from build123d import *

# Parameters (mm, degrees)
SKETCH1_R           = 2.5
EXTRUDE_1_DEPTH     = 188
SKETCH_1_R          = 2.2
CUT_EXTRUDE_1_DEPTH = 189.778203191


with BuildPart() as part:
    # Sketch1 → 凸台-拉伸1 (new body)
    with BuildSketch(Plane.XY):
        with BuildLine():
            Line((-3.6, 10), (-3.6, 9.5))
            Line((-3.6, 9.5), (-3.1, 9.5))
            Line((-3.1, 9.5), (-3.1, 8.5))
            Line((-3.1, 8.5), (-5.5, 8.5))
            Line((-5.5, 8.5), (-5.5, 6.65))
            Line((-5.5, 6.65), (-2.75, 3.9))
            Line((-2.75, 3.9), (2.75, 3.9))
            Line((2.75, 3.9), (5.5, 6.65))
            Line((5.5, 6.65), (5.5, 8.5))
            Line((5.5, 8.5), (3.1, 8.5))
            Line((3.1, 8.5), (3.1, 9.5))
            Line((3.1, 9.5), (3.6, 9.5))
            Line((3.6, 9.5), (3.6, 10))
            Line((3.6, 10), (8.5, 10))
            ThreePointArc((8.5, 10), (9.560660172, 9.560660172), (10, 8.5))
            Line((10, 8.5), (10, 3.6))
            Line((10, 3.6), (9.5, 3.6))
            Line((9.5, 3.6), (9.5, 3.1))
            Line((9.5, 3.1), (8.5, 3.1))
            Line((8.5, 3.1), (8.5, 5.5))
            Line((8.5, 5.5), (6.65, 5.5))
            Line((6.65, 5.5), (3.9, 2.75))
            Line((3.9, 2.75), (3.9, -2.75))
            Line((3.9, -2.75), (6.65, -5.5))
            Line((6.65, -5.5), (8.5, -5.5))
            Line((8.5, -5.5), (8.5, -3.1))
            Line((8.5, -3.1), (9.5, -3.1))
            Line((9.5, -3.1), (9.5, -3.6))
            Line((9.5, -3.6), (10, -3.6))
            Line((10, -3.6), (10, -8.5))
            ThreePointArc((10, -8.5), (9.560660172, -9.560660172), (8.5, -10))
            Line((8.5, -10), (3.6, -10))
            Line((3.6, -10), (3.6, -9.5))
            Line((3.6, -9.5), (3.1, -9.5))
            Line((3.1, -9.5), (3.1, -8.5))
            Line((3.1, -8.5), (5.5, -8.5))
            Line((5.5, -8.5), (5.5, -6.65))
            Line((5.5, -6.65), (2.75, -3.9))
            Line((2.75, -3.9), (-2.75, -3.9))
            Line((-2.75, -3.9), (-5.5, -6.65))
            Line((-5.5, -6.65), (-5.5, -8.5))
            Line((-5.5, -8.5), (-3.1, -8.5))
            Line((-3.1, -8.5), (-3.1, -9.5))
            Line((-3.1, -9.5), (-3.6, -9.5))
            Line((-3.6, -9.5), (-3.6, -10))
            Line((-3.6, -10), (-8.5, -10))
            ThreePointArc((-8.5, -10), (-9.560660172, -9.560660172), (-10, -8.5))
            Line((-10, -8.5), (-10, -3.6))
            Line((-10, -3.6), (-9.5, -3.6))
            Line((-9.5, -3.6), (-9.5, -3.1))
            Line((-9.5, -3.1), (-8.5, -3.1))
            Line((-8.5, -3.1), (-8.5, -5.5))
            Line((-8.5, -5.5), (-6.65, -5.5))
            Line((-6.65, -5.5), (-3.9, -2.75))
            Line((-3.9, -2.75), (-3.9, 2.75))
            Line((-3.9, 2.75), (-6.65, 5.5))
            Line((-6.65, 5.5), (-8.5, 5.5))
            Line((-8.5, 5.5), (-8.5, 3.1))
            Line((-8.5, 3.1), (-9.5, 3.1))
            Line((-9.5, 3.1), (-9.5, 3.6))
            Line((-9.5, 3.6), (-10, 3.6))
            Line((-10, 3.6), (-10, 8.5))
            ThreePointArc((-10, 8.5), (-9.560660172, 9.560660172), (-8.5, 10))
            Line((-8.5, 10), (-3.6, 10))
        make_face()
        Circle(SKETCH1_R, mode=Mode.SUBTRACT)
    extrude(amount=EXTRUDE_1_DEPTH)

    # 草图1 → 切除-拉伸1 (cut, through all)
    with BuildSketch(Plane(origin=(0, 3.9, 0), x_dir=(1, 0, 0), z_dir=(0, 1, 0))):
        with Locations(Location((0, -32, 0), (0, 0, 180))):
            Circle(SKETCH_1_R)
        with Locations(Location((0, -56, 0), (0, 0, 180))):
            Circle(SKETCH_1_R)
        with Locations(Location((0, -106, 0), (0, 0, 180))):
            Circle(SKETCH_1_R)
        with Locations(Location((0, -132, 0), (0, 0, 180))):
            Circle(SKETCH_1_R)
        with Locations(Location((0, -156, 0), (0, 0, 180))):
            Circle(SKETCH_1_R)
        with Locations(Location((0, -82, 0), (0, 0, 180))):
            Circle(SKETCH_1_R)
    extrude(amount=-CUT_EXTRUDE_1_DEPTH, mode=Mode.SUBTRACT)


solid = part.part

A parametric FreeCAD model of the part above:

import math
import FreeCAD as App
import Part
import Sketcher
Q = App.Units.Quantity

doc = App.newDocument("Part")
params = doc.addObject("Spreadsheet::Sheet", "Params")
for row, (alias, value) in enumerate([
    ("sketch1_diameter", "5 mm"),
    ("sketch1_radius", "1.5 mm"),
    ("sketch1_width", "1 mm"),
    ("sketch1_width2", "4.9 mm"),
    ("sketch1_width3", "2.4 mm"),
    ("pad1_length", "188 mm"),
    ("sketch2_diameter", "4.4 mm"),
], start=1):
    params.set(f"A{row}", alias)
    params.set(f"B{row}", "=" + value)
    params.setAlias(f"B{row}", alias)

body = doc.addObject("PartDesign::Body", "Body")

sketch1 = body.newObject("Sketcher::SketchObject", "Sketch")
sketch1.AttachmentSupport = (doc.getObject("XY_Plane"), [""])
sketch1.MapMode = "FlatFace"
sketch1.addGeometry([
    Part.LineSegment(App.Vector(-3.6, 9.5, 0), App.Vector(-3.6, 10, 0)),
    Part.LineSegment(App.Vector(-3.6, 10, 0), App.Vector(-8.5, 10, 0)),
    Part.ArcOfCircle(Part.Circle(App.Vector(-8.5, 8.5, 0), App.Vector(0, 0, 1), 1.5), math.radians(90), math.radians(180)),
    Part.LineSegment(App.Vector(-10, 8.5, 0), App.Vector(-10, 3.6, 0)),
    Part.LineSegment(App.Vector(-10, 3.6, 0), App.Vector(-9.5, 3.6, 0)),
    Part.LineSegment(App.Vector(-9.5, 3.6, 0), App.Vector(-9.5, 3.1, 0)),
    Part.LineSegment(App.Vector(-9.5, 3.1, 0), App.Vector(-8.5, 3.1, 0)),
    Part.LineSegment(App.Vector(-8.5, 3.1, 0), App.Vector(-8.5, 5.5, 0)),
    Part.LineSegment(App.Vector(-8.5, 5.5, 0), App.Vector(-6.65, 5.5, 0)),
    Part.LineSegment(App.Vector(-6.65, 5.5, 0), App.Vector(-3.9, 2.75, 0)),
    Part.LineSegment(App.Vector(-3.9, 2.75, 0), App.Vector(-3.9, -2.75, 0)),
    Part.LineSegment(App.Vector(-3.9, -2.75, 0), App.Vector(-6.65, -5.5, 0)),
    Part.LineSegment(App.Vector(-6.65, -5.5, 0), App.Vector(-8.5, -5.5, 0)),
    Part.LineSegment(App.Vector(-8.5, -5.5, 0), App.Vector(-8.5, -3.1, 0)),
    Part.LineSegment(App.Vector(-8.5, -3.1, 0), App.Vector(-9.5, -3.1, 0)),
    Part.LineSegment(App.Vector(-9.5, -3.1, 0), App.Vector(-9.5, -3.6, 0)),
    Part.LineSegment(App.Vector(-9.5, -3.6, 0), App.Vector(-10, -3.6, 0)),
    Part.LineSegment(App.Vector(-10, -3.6, 0), App.Vector(-10, -8.5, 0)),
    Part.ArcOfCircle(Part.Circle(App.Vector(-8.5, -8.5, 0), App.Vector(0, 0, 1), 1.5), math.radians(180), math.radians(270)),
    Part.LineSegment(App.Vector(-8.5, -10, 0), App.Vector(-3.6, -10, 0)),
    Part.LineSegment(App.Vector(-3.6, -10, 0), App.Vector(-3.6, -9.5, 0)),
    Part.LineSegment(App.Vector(-3.6, -9.5, 0), App.Vector(-3.1, -9.5, 0)),
    Part.LineSegment(App.Vector(-3.1, -9.5, 0), App.Vector(-3.1, -8.5, 0)),
    Part.LineSegment(App.Vector(-3.1, -8.5, 0), App.Vector(-5.5, -8.5, 0)),
    Part.LineSegment(App.Vector(-5.5, -8.5, 0), App.Vector(-5.5, -6.65, 0)),
    Part.LineSegment(App.Vector(-5.5, -6.65, 0), App.Vector(-2.75, -3.9, 0)),
    Part.LineSegment(App.Vector(-2.75, -3.9, 0), App.Vector(2.75, -3.9, 0)),
    Part.LineSegment(App.Vector(2.75, -3.9, 0), App.Vector(5.5, -6.65, 0)),
    Part.LineSegment(App.Vector(5.5, -6.65, 0), App.Vector(5.5, -8.5, 0)),
    Part.LineSegment(App.Vector(5.5, -8.5, 0), App.Vector(3.1, -8.5, 0)),
    Part.LineSegment(App.Vector(3.1, -8.5, 0), App.Vector(3.1, -9.5, 0)),
    Part.LineSegment(App.Vector(3.1, -9.5, 0), App.Vector(3.6, -9.5, 0)),
    Part.LineSegment(App.Vector(3.6, -9.5, 0), App.Vector(3.6, -10, 0)),
    Part.LineSegment(App.Vector(3.6, -10, 0), App.Vector(8.5, -10, 0)),
    Part.ArcOfCircle(Part.Circle(App.Vector(8.5, -8.5, 0), App.Vector(0, 0, 1), 1.5), math.radians(-90), math.radians(0)),
    Part.LineSegment(App.Vector(10, -8.5, 0), App.Vector(10, -3.6, 0)),
    Part.LineSegment(App.Vector(10, -3.6, 0), App.Vector(9.5, -3.6, 0)),
    Part.LineSegment(App.Vector(9.5, -3.6, 0), App.Vector(9.5, -3.1, 0)),
    Part.LineSegment(App.Vector(9.5, -3.1, 0), App.Vector(8.5, -3.1, 0)),
    Part.LineSegment(App.Vector(8.5, -3.1, 0), App.Vector(8.5, -5.5, 0)),
    Part.LineSegment(App.Vector(8.5, -5.5, 0), App.Vector(6.65, -5.5, 0)),
    Part.LineSegment(App.Vector(6.65, -5.5, 0), App.Vector(3.9, -2.75, 0)),
    Part.LineSegment(App.Vector(3.9, -2.75, 0), App.Vector(3.9, 2.75, 0)),
    Part.LineSegment(App.Vector(3.9, 2.75, 0), App.Vector(6.65, 5.5, 0)),
    Part.LineSegment(App.Vector(6.65, 5.5, 0), App.Vector(8.5, 5.5, 0)),
    Part.LineSegment(App.Vector(8.5, 5.5, 0), App.Vector(8.5, 3.1, 0)),
    Part.LineSegment(App.Vector(8.5, 3.1, 0), App.Vector(9.5, 3.1, 0)),
    Part.LineSegment(App.Vector(9.5, 3.1, 0), App.Vector(9.5, 3.6, 0)),
    Part.LineSegment(App.Vector(9.5, 3.6, 0), App.Vector(10, 3.6, 0)),
    Part.LineSegment(App.Vector(10, 3.6, 0), App.Vector(10, 8.5, 0)),
    Part.ArcOfCircle(Part.Circle(App.Vector(8.5, 8.5, 0), App.Vector(0, 0, 1), 1.5), math.radians(0), math.radians(90)),
    Part.LineSegment(App.Vector(8.5, 10, 0), App.Vector(3.6, 10, 0)),
    Part.LineSegment(App.Vector(3.6, 10, 0), App.Vector(3.6, 9.5, 0)),
    Part.LineSegment(App.Vector(3.6, 9.5, 0), App.Vector(3.1, 9.5, 0)),
    Part.LineSegment(App.Vector(3.1, 9.5, 0), App.Vector(3.1, 8.5, 0)),
    Part.LineSegment(App.Vector(3.1, 8.5, 0), App.Vector(5.5, 8.5, 0)),
    Part.LineSegment(App.Vector(5.5, 8.5, 0), App.Vector(5.5, 6.65, 0)),
    Part.LineSegment(App.Vector(5.5, 6.65, 0), App.Vector(2.75, 3.9, 0)),
    Part.LineSegment(App.Vector(2.75, 3.9, 0), App.Vector(-2.75, 3.9, 0)),
    Part.LineSegment(App.Vector(-2.75, 3.9, 0), App.Vector(-5.5, 6.65, 0)),
    Part.LineSegment(App.Vector(-5.5, 6.65, 0), App.Vector(-5.5, 8.5, 0)),
    Part.LineSegment(App.Vector(-5.5, 8.5, 0), App.Vector(-3.1, 8.5, 0)),
    Part.LineSegment(App.Vector(-3.1, 8.5, 0), App.Vector(-3.1, 9.5, 0)),
    Part.LineSegment(App.Vector(-3.1, 9.5, 0), App.Vector(-3.6, 9.5, 0)),
    Part.Circle(App.Vector(0, 0, 0), App.Vector(0, 0, 1), 2.5),
], False)
sketch1.addConstraint([
    Sketcher.Constraint("Coincident", 0, 2, 1, 1),
    Sketcher.Constraint("Tangent", 1, 2, 2, 1),
    Sketcher.Constraint("Tangent", 2, 2, 3, 1),
    Sketcher.Constraint("Coincident", 3, 2, 4, 1),
    Sketcher.Constraint("Coincident", 4, 2, 5, 1),
    Sketcher.Constraint("Coincident", 5, 2, 6, 1),
    Sketcher.Constraint("Coincident", 6, 2, 7, 1),
    Sketcher.Constraint("Coincident", 7, 2, 8, 1),
    Sketcher.Constraint("Coincident", 8, 2, 9, 1),
    Sketcher.Constraint("Coincident", 9, 2, 10, 1),
    Sketcher.Constraint("Coincident", 10, 2, 11, 1),
    Sketcher.Constraint("Coincident", 11, 2, 12, 1),
    Sketcher.Constraint("Coincident", 12, 2, 13, 1),
    Sketcher.Constraint("Coincident", 13, 2, 14, 1),
    Sketcher.Constraint("Coincident", 14, 2, 15, 1),
    Sketcher.Constraint("Coincident", 15, 2, 16, 1),
    Sketcher.Constraint("Coincident", 16, 2, 17, 1),
    Sketcher.Constraint("Tangent", 17, 2, 18, 1),
    Sketcher.Constraint("Tangent", 18, 2, 19, 1),
    Sketcher.Constraint("Coincident", 19, 2, 20, 1),
    Sketcher.Constraint("Coincident", 20, 2, 21, 1),
    Sketcher.Constraint("Coincident", 21, 2, 22, 1),
    Sketcher.Constraint("Coincident", 22, 2, 23, 1),
    Sketcher.Constraint("Coincident", 23, 2, 24, 1),
    Sketcher.Constraint("Coincident", 24, 2, 25, 1),
    Sketcher.Constraint("Coincident", 25, 2, 26, 1),
    Sketcher.Constraint("Coincident", 26, 2, 27, 1),
    Sketcher.Constraint("Coincident", 27, 2, 28, 1),
    Sketcher.Constraint("Coincident", 28, 2, 29, 1),
    Sketcher.Constraint("Coincident", 29, 2, 30, 1),
    Sketcher.Constraint("Coincident", 30, 2, 31, 1),
    Sketcher.Constraint("Coincident", 31, 2, 32, 1),
    Sketcher.Constraint("Coincident", 32, 2, 33, 1),
    Sketcher.Constraint("Tangent", 33, 2, 34, 1),
    Sketcher.Constraint("Tangent", 34, 2, 35, 1),
    Sketcher.Constraint("Coincident", 35, 2, 36, 1),
    Sketcher.Constraint("Coincident", 36, 2, 37, 1),
    Sketcher.Constraint("Coincident", 37, 2, 38, 1),
    Sketcher.Constraint("Coincident", 38, 2, 39, 1),
    Sketcher.Constraint("Coincident", 39, 2, 40, 1),
    Sketcher.Constraint("Coincident", 40, 2, 41, 1),
    Sketcher.Constraint("Coincident", 41, 2, 42, 1),
    Sketcher.Constraint("Coincident", 42, 2, 43, 1),
    Sketcher.Constraint("Coincident", 43, 2, 44, 1),
    Sketcher.Constraint("Coincident", 44, 2, 45, 1),
    Sketcher.Constraint("Coincident", 45, 2, 46, 1),
    Sketcher.Constraint("Coincident", 46, 2, 47, 1),
    Sketcher.Constraint("Coincident", 47, 2, 48, 1),
    Sketcher.Constraint("Coincident", 48, 2, 49, 1),
    Sketcher.Constraint("Tangent", 49, 2, 50, 1),
    Sketcher.Constraint("Tangent", 50, 2, 51, 1),
    Sketcher.Constraint("Coincident", 51, 2, 52, 1),
    Sketcher.Constraint("Coincident", 52, 2, 53, 1),
    Sketcher.Constraint("Coincident", 53, 2, 54, 1),
    Sketcher.Constraint("Coincident", 54, 2, 55, 1),
    Sketcher.Constraint("Coincident", 55, 2, 56, 1),
    Sketcher.Constraint("Coincident", 56, 2, 57, 1),
    Sketcher.Constraint("Coincident", 57, 2, 58, 1),
    Sketcher.Constraint("Coincident", 58, 2, 59, 1),
    Sketcher.Constraint("Coincident", 59, 2, 60, 1),
    Sketcher.Constraint("Coincident", 60, 2, 61, 1),
    Sketcher.Constraint("Coincident", 61, 2, 62, 1),
    Sketcher.Constraint("Coincident", 62, 2, 63, 1),
    Sketcher.Constraint("Coincident", 63, 2, 0, 1),
    Sketcher.Constraint("Vertical", 0),
    Sketcher.Constraint("Horizontal", 1),
    Sketcher.Constraint("Vertical", 3),
    Sketcher.Constraint("Horizontal", 4),
    Sketcher.Constraint("Vertical", 5),
    Sketcher.Constraint("Horizontal", 6),
    Sketcher.Constraint("Vertical", 7),
    Sketcher.Constraint("Horizontal", 8),
    Sketcher.Constraint("Vertical", 10),
    Sketcher.Constraint("Horizontal", 12),
    Sketcher.Constraint("Vertical", 13),
    Sketcher.Constraint("Horizontal", 14),
    Sketcher.Constraint("Vertical", 15),
    Sketcher.Constraint("Horizontal", 16),
    Sketcher.Constraint("Vertical", 17),
    Sketcher.Constraint("Horizontal", 19),
    Sketcher.Constraint("Vertical", 20),
    Sketcher.Constraint("Horizontal", 21),
    Sketcher.Constraint("Vertical", 22),
    Sketcher.Constraint("Horizontal", 23),
    Sketcher.Constraint("Vertical", 24),
    Sketcher.Constraint("Horizontal", 26),
    Sketcher.Constraint("Vertical", 28),
    Sketcher.Constraint("Horizontal", 29),
    Sketcher.Constraint("Vertical", 30),
    Sketcher.Constraint("Horizontal", 31),
    Sketcher.Constraint("Vertical", 32),
    Sketcher.Constraint("Horizontal", 33),
    Sketcher.Constraint("Vertical", 35),
    Sketcher.Constraint("Horizontal", 36),
    Sketcher.Constraint("Vertical", 37),
    Sketcher.Constraint("Horizontal", 38),
    Sketcher.Constraint("Vertical", 39),
    Sketcher.Constraint("Horizontal", 40),
    Sketcher.Constraint("Vertical", 42),
    Sketcher.Constraint("Horizontal", 44),
    Sketcher.Constraint("Vertical", 45),
    Sketcher.Constraint("Horizontal", 46),
    Sketcher.Constraint("Vertical", 47),
    Sketcher.Constraint("Horizontal", 48),
    Sketcher.Constraint("Vertical", 49),
    Sketcher.Constraint("Horizontal", 51),
    Sketcher.Constraint("Vertical", 52),
    Sketcher.Constraint("Horizontal", 53),
    Sketcher.Constraint("Vertical", 54),
    Sketcher.Constraint("Horizontal", 55),
    Sketcher.Constraint("Vertical", 56),
    Sketcher.Constraint("Horizontal", 58),
    Sketcher.Constraint("Vertical", 60),
    Sketcher.Constraint("Horizontal", 61),
    Sketcher.Constraint("Vertical", 62),
    Sketcher.Constraint("Horizontal", 63),
    Sketcher.Constraint("Coincident", 64, 3, -1, 1),
    Sketcher.Constraint("Equal", 2, 18),
    Sketcher.Constraint("Equal", 18, 34),
    Sketcher.Constraint("Equal", 34, 50),
    Sketcher.Constraint("Symmetric", 2, 3, 34, 3, -1, 1),
    Sketcher.Constraint("Symmetric", 18, 3, 50, 3, -1, 1),
    Sketcher.Constraint("Symmetric", 4, 2, 36, 2, -1, 1),
    Sketcher.Constraint("Symmetric", 6, 2, 38, 2, -1, 1),
    Sketcher.Constraint("Symmetric", 8, 2, 40, 2, -1, 1),
    Sketcher.Constraint("Symmetric", 9, 2, 41, 2, -1, 1),
    Sketcher.Constraint("Symmetric", 11, 2, 43, 2, -1, 1),
    Sketcher.Constraint("Symmetric", 13, 2, 45, 2, -1, 1),
    Sketcher.Constraint("Symmetric", 15, 2, 47, 2, -1, 1),
    Sketcher.Constraint("Symmetric", 20, 2, 52, 2, -1, 1),
    Sketcher.Constraint("Symmetric", 22, 2, 54, 2, -1, 1),
    Sketcher.Constraint("Symmetric", 24, 2, 56, 2, -1, 1),
    Sketcher.Constraint("Symmetric", 25, 2, 57, 2, -1, 1),
    Sketcher.Constraint("Symmetric", 27, 2, 59, 2, -1, 1),
    Sketcher.Constraint("Symmetric", 29, 2, 61, 2, -1, 1),
    Sketcher.Constraint("Symmetric", 31, 2, 63, 2, -1, 1),
    Sketcher.Constraint("Symmetric", 18, 3, 34, 3, -2),
    Sketcher.Constraint("Symmetric", 24, 2, 27, 2, -2),
    Sketcher.Constraint("Symmetric", 22, 2, 29, 2, -2),
    Sketcher.Constraint("Symmetric", 20, 2, 31, 2, -2),
    Sketcher.Constraint("Symmetric", 15, 2, 36, 2, -2),
    Sketcher.Constraint("Symmetric", 13, 2, 38, 2, -2),
    Sketcher.Constraint("Symmetric", 11, 2, 40, 2, -2),
    Sketcher.Constraint("Perpendicular", 9, 11),
    Sketcher.Constraint("Parallel", 11, 25),
    Sketcher.Constraint("Perpendicular", 25, 27),
    Sketcher.Constraint("Perpendicular", 41, 43),
    Sketcher.Constraint("Perpendicular", 57, 59),
    Sketcher.Constraint("Horizontal", 17, 2, 22, 2),
    Sketcher.Constraint("Horizontal", 10, 2, 41, 2),
    Sketcher.Constraint("Vertical", 1, 2, 6, 2),
    Sketcher.Constraint("Equal", 16, 21),
    Sketcher.Constraint("Equal", 63, 0),
    Sketcher.Constraint("Equal", 51, 3),
    Sketcher.Constraint("Equal", 0, 5),
    Sketcher.Constraint("Equal", 61, 7),
    Sketcher.Constraint("Equal", 58, 10),
    Sketcher.Constraint("Equal", 44, 24),
    Sketcher.Constraint("Equal", 11, 25),
    Sketcher.Constraint("Diameter", 64, Q("5 mm")),
    Sketcher.Constraint("Radius", 2, Q("1.5 mm")),
    Sketcher.Constraint("DistanceX", 6, 1, 6, 2, Q("1 mm")),
    Sketcher.Constraint("DistanceX", 1, 2, 1, 1, Q("4.9 mm")),
    Sketcher.Constraint("DistanceX", 23, 2, 23, 1, Q("2.4 mm")),
    Sketcher.Constraint("DistanceX", 26, 1, 26, 2, Q("5.5 mm")),
    Sketcher.Constraint("DistanceY", -1, 1, 0, 2, Q("10 mm")),
    Sketcher.Constraint("DistanceX", 8, 1, 8, 2, Q("1.85 mm")),
])
sketch1.setExpression("Constraints[159]", "Params.sketch1_diameter")
sketch1.setExpression("Constraints[160]", "Params.sketch1_radius")
sketch1.setExpression("Constraints[161]", "Params.sketch1_width")
sketch1.setExpression("Constraints[162]", "Params.sketch1_width2")
sketch1.setExpression("Constraints[163]", "Params.sketch1_width3")
pad1 = body.newObject("PartDesign::Pad", "Pad")
pad1.Profile = sketch1
pad1.setExpression("Length", "Params.pad1_length")

sketch2 = body.newObject("Sketcher::SketchObject", "Sketch001")
sketch2.AttachmentSupport = (doc.getObject("XZ_Plane"), [""])
sketch2.MapMode = "FlatFace"
sketch2.AttachmentOffset = App.Placement(App.Vector(0, 0, -3.9), App.Rotation())
sketch2.addGeometry([
    Part.Circle(App.Vector(0, 32, 0), App.Vector(0, 0, 1), 2.2),
    Part.Circle(App.Vector(0, 56, 0), App.Vector(0, 0, 1), 2.2),
    Part.Circle(App.Vector(0, 106, 0), App.Vector(0, 0, 1), 2.2),
    Part.Circle(App.Vector(0, 132, 0), App.Vector(0, 0, 1), 2.2),
    Part.Circle(App.Vector(0, 156, 0), App.Vector(0, 0, 1), 2.2),
    Part.Circle(App.Vector(0, 82, 0), App.Vector(0, 0, 1), 2.2),
], False)
sketch2.addConstraint([
    Sketcher.Constraint("Equal", 0, 1),
    Sketcher.Constraint("Equal", 1, 2),
    Sketcher.Constraint("Equal", 2, 3),
    Sketcher.Constraint("Equal", 3, 4),
    Sketcher.Constraint("Equal", 4, 5),
    Sketcher.Constraint("PointOnObject", 0, 3, -2),
    Sketcher.Constraint("PointOnObject", 1, 3, -2),
    Sketcher.Constraint("PointOnObject", 2, 3, -2),
    Sketcher.Constraint("PointOnObject", 3, 3, -2),
    Sketcher.Constraint("PointOnObject", 4, 3, -2),
    Sketcher.Constraint("PointOnObject", 5, 3, -2),
    Sketcher.Constraint("Diameter", 0, Q("4.4 mm")),
    Sketcher.Constraint("DistanceY", -1, 1, 0, 3, Q("32 mm")),
    Sketcher.Constraint("DistanceY", -1, 1, 1, 3, Q("56 mm")),
    Sketcher.Constraint("DistanceY", -1, 1, 2, 3, Q("106 mm")),
    Sketcher.Constraint("DistanceY", -1, 1, 3, 3, Q("132 mm")),
    Sketcher.Constraint("DistanceY", -1, 1, 4, 3, Q("156 mm")),
    Sketcher.Constraint("DistanceY", -1, 1, 5, 3, Q("82 mm")),
])
sketch2.setExpression("Constraints[11]", "Params.sketch2_diameter")
pocket1 = body.newObject("PartDesign::Pocket", "Pocket")
pocket1.Profile = sketch2
pocket1.Type = "ThroughAll"
pocket1.Reversed = True

doc.recompute()
